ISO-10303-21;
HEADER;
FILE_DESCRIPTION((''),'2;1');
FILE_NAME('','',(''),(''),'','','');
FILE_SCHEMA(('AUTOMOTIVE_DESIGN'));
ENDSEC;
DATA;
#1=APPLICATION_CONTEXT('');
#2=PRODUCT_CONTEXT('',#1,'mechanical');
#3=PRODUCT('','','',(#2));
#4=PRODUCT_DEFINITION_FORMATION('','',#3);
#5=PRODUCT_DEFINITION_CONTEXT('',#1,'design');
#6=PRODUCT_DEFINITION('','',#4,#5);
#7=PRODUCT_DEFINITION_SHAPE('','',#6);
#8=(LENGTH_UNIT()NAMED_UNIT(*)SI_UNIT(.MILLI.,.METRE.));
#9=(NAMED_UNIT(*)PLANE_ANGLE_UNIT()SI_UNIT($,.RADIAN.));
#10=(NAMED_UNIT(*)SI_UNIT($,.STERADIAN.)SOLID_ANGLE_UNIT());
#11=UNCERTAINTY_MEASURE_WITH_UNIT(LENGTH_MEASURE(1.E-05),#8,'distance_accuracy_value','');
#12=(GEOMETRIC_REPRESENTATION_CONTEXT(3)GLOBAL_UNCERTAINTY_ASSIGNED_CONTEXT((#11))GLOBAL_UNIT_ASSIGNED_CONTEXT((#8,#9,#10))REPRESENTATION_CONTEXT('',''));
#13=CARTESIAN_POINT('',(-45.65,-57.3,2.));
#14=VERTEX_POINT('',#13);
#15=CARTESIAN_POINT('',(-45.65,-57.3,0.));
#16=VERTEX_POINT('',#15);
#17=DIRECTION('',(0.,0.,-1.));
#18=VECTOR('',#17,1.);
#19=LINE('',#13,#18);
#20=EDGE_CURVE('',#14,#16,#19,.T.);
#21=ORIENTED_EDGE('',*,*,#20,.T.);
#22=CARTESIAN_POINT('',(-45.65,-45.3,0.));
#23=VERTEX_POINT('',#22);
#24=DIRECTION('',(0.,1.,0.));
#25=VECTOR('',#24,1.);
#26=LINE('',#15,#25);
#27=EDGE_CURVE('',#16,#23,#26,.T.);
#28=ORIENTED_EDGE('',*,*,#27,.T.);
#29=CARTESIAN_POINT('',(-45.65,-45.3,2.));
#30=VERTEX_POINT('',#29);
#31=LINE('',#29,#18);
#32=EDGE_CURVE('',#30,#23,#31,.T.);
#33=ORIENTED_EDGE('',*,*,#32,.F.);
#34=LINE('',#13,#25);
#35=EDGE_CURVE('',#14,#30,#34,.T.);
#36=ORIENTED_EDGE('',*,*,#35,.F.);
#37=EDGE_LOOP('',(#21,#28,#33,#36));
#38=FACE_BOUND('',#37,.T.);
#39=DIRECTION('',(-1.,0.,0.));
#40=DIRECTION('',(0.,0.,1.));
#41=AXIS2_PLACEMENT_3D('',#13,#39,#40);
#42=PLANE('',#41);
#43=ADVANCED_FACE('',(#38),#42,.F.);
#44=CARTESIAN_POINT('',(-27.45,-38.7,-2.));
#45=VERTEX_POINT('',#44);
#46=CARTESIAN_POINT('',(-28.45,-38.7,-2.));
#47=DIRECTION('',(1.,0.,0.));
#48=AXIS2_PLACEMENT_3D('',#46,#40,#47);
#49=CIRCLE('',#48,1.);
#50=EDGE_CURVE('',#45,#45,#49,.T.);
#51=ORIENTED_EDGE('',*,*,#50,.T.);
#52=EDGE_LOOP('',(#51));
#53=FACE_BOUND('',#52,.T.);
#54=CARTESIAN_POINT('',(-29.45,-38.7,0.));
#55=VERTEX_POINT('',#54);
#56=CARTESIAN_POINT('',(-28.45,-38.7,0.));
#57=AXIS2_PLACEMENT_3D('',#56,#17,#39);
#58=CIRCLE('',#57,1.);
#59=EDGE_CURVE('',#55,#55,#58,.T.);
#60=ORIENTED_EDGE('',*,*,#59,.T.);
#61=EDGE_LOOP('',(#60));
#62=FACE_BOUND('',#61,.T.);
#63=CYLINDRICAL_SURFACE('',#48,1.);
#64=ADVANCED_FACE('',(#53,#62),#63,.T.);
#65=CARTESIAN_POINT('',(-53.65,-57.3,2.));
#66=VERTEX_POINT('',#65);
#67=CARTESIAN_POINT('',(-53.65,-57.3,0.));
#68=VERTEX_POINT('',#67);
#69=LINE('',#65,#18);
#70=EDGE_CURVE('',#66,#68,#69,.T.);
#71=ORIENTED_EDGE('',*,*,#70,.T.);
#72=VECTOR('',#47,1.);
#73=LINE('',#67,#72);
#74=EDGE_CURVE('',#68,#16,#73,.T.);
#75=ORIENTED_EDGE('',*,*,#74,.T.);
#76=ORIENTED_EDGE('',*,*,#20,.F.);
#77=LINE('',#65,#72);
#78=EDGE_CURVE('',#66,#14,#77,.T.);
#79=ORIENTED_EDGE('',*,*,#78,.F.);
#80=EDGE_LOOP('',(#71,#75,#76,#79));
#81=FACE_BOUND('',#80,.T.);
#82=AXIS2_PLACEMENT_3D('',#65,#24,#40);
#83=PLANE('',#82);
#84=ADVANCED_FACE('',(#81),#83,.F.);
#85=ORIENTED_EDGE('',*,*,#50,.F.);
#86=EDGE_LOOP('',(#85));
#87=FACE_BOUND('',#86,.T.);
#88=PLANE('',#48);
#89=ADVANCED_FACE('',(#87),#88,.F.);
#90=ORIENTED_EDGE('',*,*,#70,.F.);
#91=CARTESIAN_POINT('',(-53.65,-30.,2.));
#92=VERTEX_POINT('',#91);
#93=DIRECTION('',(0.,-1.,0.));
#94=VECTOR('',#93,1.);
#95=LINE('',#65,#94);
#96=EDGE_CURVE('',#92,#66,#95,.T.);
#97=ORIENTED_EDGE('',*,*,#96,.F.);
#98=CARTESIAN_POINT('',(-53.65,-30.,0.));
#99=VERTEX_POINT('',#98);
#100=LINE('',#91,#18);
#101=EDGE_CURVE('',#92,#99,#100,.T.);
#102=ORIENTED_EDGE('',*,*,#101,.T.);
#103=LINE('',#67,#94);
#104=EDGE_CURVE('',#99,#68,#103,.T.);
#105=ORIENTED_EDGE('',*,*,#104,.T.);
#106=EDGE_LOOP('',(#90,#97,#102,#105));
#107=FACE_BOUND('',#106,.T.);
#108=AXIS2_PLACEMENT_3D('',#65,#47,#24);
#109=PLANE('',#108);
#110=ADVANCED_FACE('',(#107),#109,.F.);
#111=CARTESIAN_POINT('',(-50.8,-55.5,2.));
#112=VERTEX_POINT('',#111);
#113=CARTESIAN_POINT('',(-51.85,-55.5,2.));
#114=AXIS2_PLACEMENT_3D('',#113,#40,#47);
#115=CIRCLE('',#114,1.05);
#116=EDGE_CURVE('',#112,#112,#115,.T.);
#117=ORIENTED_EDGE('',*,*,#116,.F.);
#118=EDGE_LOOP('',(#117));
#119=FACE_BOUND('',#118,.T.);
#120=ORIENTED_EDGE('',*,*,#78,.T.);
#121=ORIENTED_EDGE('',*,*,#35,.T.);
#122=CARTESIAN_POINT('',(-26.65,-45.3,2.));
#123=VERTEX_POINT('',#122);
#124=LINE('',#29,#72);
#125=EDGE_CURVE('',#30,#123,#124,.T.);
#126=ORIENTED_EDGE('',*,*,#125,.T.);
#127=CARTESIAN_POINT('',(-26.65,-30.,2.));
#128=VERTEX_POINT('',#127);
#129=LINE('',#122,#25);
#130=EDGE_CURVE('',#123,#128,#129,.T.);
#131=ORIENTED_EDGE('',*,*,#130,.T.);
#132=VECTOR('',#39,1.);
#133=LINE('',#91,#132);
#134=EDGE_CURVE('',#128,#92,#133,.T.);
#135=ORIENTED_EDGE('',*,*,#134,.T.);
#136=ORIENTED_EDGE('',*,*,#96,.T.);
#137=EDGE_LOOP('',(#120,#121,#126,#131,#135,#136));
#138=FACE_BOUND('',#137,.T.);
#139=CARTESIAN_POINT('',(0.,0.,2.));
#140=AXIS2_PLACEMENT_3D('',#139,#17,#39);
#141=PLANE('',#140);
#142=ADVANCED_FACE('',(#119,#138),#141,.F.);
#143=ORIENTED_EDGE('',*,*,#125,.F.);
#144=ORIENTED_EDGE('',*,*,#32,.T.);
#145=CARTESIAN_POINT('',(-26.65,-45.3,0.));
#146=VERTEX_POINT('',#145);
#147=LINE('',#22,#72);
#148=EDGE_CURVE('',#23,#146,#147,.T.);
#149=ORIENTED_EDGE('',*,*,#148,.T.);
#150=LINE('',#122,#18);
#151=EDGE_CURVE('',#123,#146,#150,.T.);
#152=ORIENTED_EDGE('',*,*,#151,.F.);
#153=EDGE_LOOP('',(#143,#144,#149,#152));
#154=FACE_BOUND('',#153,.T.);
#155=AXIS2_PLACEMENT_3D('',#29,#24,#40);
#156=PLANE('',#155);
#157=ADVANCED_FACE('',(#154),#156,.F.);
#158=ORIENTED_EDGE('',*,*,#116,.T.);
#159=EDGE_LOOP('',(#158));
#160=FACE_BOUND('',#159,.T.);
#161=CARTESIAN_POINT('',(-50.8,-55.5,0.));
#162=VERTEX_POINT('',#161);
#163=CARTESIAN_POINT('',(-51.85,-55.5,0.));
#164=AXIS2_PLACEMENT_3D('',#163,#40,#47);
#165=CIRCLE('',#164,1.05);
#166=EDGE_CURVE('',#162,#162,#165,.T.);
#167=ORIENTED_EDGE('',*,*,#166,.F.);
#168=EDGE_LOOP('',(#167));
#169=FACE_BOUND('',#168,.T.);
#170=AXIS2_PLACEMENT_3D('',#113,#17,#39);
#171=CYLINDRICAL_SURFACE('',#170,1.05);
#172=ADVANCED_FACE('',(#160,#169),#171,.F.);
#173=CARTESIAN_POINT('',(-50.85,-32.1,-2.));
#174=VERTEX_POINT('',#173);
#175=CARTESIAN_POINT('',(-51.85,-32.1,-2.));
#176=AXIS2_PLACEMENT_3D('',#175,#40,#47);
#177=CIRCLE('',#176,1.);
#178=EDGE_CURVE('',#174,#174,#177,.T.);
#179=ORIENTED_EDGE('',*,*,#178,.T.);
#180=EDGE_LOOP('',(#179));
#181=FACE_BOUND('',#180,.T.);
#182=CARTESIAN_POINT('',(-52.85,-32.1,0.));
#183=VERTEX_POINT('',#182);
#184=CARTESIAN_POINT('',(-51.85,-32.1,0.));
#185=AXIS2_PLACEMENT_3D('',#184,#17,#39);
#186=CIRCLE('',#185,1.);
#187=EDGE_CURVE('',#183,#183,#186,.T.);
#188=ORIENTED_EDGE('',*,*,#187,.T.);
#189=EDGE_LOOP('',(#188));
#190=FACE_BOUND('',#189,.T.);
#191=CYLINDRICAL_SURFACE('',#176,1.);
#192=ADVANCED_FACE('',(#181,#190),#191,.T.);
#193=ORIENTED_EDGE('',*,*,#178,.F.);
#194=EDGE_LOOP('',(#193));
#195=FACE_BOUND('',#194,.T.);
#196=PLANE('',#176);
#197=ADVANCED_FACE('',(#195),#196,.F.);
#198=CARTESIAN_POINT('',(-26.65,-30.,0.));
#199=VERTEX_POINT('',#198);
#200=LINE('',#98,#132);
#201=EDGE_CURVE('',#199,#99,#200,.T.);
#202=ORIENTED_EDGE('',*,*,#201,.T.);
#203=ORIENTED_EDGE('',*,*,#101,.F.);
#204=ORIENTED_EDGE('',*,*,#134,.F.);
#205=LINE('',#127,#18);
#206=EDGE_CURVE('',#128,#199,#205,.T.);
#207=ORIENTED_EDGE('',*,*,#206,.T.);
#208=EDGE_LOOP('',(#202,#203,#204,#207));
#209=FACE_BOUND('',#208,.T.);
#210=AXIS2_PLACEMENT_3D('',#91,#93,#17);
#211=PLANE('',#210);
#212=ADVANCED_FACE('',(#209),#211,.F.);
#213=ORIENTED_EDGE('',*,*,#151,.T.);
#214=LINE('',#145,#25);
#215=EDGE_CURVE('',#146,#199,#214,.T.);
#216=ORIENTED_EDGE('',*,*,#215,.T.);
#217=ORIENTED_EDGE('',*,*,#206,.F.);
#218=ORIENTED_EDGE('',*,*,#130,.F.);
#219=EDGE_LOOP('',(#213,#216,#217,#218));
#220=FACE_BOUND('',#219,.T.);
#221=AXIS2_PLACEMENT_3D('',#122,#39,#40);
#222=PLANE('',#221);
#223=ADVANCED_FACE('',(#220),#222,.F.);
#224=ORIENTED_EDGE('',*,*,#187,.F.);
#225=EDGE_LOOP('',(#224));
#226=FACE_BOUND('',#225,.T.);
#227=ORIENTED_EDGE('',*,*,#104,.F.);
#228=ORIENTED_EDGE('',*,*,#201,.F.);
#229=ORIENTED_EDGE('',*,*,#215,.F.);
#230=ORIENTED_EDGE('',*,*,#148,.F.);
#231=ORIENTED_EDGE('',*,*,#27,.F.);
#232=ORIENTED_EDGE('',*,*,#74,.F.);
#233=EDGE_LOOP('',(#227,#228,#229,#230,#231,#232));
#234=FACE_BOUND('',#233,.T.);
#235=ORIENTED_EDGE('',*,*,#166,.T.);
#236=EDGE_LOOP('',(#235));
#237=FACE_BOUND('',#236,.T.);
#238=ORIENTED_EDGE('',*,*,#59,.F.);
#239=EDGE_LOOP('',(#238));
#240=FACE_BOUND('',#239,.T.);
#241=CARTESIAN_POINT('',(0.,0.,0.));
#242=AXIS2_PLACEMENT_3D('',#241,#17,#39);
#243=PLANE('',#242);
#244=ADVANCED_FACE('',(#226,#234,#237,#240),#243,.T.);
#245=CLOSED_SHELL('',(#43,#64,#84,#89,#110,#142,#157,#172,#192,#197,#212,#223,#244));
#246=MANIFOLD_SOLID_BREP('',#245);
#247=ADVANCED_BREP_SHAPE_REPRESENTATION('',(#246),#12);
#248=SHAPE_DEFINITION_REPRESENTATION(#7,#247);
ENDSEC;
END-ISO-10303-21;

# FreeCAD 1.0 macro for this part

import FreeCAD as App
import Part
import Sketcher
from FreeCAD import Vector

doc = App.newDocument("Part")
body = doc.addObject("PartDesign::Body", "Body")

sketch1 = doc.addObject("Sketcher::SketchObject", "Sketch")
body.addObject(sketch1)
sketch1.AttachmentSupport = (doc.XY_Plane, [""])
sketch1.MapMode = "FlatFace"
sketch1.addGeometry([
    Part.LineSegment(Vector(-53.6, -57.3, 0), Vector(-45.6, -57.3, 0)),
    Part.LineSegment(Vector(-45.6, -57.3, 0), Vector(-45.6, -45.3, 0)),
    Part.LineSegment(Vector(-45.6, -45.3, 0), Vector(-26.6, -45.3, 0)),
    Part.LineSegment(Vector(-26.6, -45.3, 0), Vector(-26.6, -30, 0)),
    Part.LineSegment(Vector(-26.6, -30, 0), Vector(-53.6, -30, 0)),
    Part.LineSegment(Vector(-53.6, -30, 0), Vector(-53.6, -57.3, 0)),
    Part.Circle(Vector(-51.9, -55.5, 0), Vector(0, 0, 1), 1.1),
], False)
sketch1.addConstraint([
    Sketcher.Constraint("Coincident", 0, 2, 1, 1),
    Sketcher.Constraint("Coincident", 1, 2, 2, 1),
    Sketcher.Constraint("Coincident", 2, 2, 3, 1),
    Sketcher.Constraint("Coincident", 3, 2, 4, 1),
    Sketcher.Constraint("Coincident", 4, 2, 5, 1),
    Sketcher.Constraint("Coincident", 5, 2, 0, 1),
    Sketcher.Constraint("Horizontal", 0),
    Sketcher.Constraint("Vertical", 1),
    Sketcher.Constraint("Horizontal", 2),
    Sketcher.Constraint("Vertical", 3),
    Sketcher.Constraint("Horizontal", 4),
    Sketcher.Constraint("Vertical", 5),
    Sketcher.Constraint("Diameter", 6, 2.1),
    Sketcher.Constraint("DistanceX", 0, 1, 0, 2, 8.0),
    Sketcher.Constraint("DistanceX", 2, 1, 2, 2, 19.0),
    Sketcher.Constraint("DistanceY", 1, 1, 1, 2, 12.0),
    Sketcher.Constraint("DistanceY", 3, 1, 3, 2, 15.3),
    Sketcher.Constraint("DistanceY", 3, 2, -1, 1, 30.0),
    Sketcher.Constraint("DistanceY", 6, 3, -1, 1, 55.5),
    Sketcher.Constraint("DistanceX", 6, 3, 0, 2, 6.2),
    Sketcher.Constraint("DistanceX", 6, 3, -1, 1, 51.85),
])
pad1 = doc.addObject("PartDesign::Pad", "Pad")
body.addObject(pad1)
pad1.Profile = sketch1
pad1.Length = 2

sketch2 = doc.addObject("Sketcher::SketchObject", "Sketch001")
body.addObject(sketch2)
sketch2.AttachmentSupport = (doc.XY_Plane, [""])
sketch2.MapMode = "FlatFace"
sketch2.AttachmentOffset = App.Placement(Vector(0, 0, 2), App.Rotation())
sketch2.addGeometry([
    Part.Circle(Vector(-28.4, -38.7, 0), Vector(0, 0, 1), 1),
    Part.Circle(Vector(-51.9, -32.1, 0), Vector(0, 0, 1), 1),
], False)
sketch2.addConstraint([
    Sketcher.Constraint("Equal", 0, 1),
    Sketcher.Constraint("Diameter", 0, 2.0),
    Sketcher.Constraint("DistanceY", 0, 3, -1, 1, 38.7),
    Sketcher.Constraint("DistanceY", 1, 3, -1, 1, 32.1),
    Sketcher.Constraint("DistanceX", 1, 3, 0, 3, 23.4),
    Sketcher.Constraint("DistanceX", 0, 3, -1, 1, 28.45),
])
pad2 = doc.addObject("PartDesign::Pad", "Pad001")
body.addObject(pad2)
pad2.Profile = sketch2
pad2.Length = 4
pad2.Reversed = True

doc.recompute()
